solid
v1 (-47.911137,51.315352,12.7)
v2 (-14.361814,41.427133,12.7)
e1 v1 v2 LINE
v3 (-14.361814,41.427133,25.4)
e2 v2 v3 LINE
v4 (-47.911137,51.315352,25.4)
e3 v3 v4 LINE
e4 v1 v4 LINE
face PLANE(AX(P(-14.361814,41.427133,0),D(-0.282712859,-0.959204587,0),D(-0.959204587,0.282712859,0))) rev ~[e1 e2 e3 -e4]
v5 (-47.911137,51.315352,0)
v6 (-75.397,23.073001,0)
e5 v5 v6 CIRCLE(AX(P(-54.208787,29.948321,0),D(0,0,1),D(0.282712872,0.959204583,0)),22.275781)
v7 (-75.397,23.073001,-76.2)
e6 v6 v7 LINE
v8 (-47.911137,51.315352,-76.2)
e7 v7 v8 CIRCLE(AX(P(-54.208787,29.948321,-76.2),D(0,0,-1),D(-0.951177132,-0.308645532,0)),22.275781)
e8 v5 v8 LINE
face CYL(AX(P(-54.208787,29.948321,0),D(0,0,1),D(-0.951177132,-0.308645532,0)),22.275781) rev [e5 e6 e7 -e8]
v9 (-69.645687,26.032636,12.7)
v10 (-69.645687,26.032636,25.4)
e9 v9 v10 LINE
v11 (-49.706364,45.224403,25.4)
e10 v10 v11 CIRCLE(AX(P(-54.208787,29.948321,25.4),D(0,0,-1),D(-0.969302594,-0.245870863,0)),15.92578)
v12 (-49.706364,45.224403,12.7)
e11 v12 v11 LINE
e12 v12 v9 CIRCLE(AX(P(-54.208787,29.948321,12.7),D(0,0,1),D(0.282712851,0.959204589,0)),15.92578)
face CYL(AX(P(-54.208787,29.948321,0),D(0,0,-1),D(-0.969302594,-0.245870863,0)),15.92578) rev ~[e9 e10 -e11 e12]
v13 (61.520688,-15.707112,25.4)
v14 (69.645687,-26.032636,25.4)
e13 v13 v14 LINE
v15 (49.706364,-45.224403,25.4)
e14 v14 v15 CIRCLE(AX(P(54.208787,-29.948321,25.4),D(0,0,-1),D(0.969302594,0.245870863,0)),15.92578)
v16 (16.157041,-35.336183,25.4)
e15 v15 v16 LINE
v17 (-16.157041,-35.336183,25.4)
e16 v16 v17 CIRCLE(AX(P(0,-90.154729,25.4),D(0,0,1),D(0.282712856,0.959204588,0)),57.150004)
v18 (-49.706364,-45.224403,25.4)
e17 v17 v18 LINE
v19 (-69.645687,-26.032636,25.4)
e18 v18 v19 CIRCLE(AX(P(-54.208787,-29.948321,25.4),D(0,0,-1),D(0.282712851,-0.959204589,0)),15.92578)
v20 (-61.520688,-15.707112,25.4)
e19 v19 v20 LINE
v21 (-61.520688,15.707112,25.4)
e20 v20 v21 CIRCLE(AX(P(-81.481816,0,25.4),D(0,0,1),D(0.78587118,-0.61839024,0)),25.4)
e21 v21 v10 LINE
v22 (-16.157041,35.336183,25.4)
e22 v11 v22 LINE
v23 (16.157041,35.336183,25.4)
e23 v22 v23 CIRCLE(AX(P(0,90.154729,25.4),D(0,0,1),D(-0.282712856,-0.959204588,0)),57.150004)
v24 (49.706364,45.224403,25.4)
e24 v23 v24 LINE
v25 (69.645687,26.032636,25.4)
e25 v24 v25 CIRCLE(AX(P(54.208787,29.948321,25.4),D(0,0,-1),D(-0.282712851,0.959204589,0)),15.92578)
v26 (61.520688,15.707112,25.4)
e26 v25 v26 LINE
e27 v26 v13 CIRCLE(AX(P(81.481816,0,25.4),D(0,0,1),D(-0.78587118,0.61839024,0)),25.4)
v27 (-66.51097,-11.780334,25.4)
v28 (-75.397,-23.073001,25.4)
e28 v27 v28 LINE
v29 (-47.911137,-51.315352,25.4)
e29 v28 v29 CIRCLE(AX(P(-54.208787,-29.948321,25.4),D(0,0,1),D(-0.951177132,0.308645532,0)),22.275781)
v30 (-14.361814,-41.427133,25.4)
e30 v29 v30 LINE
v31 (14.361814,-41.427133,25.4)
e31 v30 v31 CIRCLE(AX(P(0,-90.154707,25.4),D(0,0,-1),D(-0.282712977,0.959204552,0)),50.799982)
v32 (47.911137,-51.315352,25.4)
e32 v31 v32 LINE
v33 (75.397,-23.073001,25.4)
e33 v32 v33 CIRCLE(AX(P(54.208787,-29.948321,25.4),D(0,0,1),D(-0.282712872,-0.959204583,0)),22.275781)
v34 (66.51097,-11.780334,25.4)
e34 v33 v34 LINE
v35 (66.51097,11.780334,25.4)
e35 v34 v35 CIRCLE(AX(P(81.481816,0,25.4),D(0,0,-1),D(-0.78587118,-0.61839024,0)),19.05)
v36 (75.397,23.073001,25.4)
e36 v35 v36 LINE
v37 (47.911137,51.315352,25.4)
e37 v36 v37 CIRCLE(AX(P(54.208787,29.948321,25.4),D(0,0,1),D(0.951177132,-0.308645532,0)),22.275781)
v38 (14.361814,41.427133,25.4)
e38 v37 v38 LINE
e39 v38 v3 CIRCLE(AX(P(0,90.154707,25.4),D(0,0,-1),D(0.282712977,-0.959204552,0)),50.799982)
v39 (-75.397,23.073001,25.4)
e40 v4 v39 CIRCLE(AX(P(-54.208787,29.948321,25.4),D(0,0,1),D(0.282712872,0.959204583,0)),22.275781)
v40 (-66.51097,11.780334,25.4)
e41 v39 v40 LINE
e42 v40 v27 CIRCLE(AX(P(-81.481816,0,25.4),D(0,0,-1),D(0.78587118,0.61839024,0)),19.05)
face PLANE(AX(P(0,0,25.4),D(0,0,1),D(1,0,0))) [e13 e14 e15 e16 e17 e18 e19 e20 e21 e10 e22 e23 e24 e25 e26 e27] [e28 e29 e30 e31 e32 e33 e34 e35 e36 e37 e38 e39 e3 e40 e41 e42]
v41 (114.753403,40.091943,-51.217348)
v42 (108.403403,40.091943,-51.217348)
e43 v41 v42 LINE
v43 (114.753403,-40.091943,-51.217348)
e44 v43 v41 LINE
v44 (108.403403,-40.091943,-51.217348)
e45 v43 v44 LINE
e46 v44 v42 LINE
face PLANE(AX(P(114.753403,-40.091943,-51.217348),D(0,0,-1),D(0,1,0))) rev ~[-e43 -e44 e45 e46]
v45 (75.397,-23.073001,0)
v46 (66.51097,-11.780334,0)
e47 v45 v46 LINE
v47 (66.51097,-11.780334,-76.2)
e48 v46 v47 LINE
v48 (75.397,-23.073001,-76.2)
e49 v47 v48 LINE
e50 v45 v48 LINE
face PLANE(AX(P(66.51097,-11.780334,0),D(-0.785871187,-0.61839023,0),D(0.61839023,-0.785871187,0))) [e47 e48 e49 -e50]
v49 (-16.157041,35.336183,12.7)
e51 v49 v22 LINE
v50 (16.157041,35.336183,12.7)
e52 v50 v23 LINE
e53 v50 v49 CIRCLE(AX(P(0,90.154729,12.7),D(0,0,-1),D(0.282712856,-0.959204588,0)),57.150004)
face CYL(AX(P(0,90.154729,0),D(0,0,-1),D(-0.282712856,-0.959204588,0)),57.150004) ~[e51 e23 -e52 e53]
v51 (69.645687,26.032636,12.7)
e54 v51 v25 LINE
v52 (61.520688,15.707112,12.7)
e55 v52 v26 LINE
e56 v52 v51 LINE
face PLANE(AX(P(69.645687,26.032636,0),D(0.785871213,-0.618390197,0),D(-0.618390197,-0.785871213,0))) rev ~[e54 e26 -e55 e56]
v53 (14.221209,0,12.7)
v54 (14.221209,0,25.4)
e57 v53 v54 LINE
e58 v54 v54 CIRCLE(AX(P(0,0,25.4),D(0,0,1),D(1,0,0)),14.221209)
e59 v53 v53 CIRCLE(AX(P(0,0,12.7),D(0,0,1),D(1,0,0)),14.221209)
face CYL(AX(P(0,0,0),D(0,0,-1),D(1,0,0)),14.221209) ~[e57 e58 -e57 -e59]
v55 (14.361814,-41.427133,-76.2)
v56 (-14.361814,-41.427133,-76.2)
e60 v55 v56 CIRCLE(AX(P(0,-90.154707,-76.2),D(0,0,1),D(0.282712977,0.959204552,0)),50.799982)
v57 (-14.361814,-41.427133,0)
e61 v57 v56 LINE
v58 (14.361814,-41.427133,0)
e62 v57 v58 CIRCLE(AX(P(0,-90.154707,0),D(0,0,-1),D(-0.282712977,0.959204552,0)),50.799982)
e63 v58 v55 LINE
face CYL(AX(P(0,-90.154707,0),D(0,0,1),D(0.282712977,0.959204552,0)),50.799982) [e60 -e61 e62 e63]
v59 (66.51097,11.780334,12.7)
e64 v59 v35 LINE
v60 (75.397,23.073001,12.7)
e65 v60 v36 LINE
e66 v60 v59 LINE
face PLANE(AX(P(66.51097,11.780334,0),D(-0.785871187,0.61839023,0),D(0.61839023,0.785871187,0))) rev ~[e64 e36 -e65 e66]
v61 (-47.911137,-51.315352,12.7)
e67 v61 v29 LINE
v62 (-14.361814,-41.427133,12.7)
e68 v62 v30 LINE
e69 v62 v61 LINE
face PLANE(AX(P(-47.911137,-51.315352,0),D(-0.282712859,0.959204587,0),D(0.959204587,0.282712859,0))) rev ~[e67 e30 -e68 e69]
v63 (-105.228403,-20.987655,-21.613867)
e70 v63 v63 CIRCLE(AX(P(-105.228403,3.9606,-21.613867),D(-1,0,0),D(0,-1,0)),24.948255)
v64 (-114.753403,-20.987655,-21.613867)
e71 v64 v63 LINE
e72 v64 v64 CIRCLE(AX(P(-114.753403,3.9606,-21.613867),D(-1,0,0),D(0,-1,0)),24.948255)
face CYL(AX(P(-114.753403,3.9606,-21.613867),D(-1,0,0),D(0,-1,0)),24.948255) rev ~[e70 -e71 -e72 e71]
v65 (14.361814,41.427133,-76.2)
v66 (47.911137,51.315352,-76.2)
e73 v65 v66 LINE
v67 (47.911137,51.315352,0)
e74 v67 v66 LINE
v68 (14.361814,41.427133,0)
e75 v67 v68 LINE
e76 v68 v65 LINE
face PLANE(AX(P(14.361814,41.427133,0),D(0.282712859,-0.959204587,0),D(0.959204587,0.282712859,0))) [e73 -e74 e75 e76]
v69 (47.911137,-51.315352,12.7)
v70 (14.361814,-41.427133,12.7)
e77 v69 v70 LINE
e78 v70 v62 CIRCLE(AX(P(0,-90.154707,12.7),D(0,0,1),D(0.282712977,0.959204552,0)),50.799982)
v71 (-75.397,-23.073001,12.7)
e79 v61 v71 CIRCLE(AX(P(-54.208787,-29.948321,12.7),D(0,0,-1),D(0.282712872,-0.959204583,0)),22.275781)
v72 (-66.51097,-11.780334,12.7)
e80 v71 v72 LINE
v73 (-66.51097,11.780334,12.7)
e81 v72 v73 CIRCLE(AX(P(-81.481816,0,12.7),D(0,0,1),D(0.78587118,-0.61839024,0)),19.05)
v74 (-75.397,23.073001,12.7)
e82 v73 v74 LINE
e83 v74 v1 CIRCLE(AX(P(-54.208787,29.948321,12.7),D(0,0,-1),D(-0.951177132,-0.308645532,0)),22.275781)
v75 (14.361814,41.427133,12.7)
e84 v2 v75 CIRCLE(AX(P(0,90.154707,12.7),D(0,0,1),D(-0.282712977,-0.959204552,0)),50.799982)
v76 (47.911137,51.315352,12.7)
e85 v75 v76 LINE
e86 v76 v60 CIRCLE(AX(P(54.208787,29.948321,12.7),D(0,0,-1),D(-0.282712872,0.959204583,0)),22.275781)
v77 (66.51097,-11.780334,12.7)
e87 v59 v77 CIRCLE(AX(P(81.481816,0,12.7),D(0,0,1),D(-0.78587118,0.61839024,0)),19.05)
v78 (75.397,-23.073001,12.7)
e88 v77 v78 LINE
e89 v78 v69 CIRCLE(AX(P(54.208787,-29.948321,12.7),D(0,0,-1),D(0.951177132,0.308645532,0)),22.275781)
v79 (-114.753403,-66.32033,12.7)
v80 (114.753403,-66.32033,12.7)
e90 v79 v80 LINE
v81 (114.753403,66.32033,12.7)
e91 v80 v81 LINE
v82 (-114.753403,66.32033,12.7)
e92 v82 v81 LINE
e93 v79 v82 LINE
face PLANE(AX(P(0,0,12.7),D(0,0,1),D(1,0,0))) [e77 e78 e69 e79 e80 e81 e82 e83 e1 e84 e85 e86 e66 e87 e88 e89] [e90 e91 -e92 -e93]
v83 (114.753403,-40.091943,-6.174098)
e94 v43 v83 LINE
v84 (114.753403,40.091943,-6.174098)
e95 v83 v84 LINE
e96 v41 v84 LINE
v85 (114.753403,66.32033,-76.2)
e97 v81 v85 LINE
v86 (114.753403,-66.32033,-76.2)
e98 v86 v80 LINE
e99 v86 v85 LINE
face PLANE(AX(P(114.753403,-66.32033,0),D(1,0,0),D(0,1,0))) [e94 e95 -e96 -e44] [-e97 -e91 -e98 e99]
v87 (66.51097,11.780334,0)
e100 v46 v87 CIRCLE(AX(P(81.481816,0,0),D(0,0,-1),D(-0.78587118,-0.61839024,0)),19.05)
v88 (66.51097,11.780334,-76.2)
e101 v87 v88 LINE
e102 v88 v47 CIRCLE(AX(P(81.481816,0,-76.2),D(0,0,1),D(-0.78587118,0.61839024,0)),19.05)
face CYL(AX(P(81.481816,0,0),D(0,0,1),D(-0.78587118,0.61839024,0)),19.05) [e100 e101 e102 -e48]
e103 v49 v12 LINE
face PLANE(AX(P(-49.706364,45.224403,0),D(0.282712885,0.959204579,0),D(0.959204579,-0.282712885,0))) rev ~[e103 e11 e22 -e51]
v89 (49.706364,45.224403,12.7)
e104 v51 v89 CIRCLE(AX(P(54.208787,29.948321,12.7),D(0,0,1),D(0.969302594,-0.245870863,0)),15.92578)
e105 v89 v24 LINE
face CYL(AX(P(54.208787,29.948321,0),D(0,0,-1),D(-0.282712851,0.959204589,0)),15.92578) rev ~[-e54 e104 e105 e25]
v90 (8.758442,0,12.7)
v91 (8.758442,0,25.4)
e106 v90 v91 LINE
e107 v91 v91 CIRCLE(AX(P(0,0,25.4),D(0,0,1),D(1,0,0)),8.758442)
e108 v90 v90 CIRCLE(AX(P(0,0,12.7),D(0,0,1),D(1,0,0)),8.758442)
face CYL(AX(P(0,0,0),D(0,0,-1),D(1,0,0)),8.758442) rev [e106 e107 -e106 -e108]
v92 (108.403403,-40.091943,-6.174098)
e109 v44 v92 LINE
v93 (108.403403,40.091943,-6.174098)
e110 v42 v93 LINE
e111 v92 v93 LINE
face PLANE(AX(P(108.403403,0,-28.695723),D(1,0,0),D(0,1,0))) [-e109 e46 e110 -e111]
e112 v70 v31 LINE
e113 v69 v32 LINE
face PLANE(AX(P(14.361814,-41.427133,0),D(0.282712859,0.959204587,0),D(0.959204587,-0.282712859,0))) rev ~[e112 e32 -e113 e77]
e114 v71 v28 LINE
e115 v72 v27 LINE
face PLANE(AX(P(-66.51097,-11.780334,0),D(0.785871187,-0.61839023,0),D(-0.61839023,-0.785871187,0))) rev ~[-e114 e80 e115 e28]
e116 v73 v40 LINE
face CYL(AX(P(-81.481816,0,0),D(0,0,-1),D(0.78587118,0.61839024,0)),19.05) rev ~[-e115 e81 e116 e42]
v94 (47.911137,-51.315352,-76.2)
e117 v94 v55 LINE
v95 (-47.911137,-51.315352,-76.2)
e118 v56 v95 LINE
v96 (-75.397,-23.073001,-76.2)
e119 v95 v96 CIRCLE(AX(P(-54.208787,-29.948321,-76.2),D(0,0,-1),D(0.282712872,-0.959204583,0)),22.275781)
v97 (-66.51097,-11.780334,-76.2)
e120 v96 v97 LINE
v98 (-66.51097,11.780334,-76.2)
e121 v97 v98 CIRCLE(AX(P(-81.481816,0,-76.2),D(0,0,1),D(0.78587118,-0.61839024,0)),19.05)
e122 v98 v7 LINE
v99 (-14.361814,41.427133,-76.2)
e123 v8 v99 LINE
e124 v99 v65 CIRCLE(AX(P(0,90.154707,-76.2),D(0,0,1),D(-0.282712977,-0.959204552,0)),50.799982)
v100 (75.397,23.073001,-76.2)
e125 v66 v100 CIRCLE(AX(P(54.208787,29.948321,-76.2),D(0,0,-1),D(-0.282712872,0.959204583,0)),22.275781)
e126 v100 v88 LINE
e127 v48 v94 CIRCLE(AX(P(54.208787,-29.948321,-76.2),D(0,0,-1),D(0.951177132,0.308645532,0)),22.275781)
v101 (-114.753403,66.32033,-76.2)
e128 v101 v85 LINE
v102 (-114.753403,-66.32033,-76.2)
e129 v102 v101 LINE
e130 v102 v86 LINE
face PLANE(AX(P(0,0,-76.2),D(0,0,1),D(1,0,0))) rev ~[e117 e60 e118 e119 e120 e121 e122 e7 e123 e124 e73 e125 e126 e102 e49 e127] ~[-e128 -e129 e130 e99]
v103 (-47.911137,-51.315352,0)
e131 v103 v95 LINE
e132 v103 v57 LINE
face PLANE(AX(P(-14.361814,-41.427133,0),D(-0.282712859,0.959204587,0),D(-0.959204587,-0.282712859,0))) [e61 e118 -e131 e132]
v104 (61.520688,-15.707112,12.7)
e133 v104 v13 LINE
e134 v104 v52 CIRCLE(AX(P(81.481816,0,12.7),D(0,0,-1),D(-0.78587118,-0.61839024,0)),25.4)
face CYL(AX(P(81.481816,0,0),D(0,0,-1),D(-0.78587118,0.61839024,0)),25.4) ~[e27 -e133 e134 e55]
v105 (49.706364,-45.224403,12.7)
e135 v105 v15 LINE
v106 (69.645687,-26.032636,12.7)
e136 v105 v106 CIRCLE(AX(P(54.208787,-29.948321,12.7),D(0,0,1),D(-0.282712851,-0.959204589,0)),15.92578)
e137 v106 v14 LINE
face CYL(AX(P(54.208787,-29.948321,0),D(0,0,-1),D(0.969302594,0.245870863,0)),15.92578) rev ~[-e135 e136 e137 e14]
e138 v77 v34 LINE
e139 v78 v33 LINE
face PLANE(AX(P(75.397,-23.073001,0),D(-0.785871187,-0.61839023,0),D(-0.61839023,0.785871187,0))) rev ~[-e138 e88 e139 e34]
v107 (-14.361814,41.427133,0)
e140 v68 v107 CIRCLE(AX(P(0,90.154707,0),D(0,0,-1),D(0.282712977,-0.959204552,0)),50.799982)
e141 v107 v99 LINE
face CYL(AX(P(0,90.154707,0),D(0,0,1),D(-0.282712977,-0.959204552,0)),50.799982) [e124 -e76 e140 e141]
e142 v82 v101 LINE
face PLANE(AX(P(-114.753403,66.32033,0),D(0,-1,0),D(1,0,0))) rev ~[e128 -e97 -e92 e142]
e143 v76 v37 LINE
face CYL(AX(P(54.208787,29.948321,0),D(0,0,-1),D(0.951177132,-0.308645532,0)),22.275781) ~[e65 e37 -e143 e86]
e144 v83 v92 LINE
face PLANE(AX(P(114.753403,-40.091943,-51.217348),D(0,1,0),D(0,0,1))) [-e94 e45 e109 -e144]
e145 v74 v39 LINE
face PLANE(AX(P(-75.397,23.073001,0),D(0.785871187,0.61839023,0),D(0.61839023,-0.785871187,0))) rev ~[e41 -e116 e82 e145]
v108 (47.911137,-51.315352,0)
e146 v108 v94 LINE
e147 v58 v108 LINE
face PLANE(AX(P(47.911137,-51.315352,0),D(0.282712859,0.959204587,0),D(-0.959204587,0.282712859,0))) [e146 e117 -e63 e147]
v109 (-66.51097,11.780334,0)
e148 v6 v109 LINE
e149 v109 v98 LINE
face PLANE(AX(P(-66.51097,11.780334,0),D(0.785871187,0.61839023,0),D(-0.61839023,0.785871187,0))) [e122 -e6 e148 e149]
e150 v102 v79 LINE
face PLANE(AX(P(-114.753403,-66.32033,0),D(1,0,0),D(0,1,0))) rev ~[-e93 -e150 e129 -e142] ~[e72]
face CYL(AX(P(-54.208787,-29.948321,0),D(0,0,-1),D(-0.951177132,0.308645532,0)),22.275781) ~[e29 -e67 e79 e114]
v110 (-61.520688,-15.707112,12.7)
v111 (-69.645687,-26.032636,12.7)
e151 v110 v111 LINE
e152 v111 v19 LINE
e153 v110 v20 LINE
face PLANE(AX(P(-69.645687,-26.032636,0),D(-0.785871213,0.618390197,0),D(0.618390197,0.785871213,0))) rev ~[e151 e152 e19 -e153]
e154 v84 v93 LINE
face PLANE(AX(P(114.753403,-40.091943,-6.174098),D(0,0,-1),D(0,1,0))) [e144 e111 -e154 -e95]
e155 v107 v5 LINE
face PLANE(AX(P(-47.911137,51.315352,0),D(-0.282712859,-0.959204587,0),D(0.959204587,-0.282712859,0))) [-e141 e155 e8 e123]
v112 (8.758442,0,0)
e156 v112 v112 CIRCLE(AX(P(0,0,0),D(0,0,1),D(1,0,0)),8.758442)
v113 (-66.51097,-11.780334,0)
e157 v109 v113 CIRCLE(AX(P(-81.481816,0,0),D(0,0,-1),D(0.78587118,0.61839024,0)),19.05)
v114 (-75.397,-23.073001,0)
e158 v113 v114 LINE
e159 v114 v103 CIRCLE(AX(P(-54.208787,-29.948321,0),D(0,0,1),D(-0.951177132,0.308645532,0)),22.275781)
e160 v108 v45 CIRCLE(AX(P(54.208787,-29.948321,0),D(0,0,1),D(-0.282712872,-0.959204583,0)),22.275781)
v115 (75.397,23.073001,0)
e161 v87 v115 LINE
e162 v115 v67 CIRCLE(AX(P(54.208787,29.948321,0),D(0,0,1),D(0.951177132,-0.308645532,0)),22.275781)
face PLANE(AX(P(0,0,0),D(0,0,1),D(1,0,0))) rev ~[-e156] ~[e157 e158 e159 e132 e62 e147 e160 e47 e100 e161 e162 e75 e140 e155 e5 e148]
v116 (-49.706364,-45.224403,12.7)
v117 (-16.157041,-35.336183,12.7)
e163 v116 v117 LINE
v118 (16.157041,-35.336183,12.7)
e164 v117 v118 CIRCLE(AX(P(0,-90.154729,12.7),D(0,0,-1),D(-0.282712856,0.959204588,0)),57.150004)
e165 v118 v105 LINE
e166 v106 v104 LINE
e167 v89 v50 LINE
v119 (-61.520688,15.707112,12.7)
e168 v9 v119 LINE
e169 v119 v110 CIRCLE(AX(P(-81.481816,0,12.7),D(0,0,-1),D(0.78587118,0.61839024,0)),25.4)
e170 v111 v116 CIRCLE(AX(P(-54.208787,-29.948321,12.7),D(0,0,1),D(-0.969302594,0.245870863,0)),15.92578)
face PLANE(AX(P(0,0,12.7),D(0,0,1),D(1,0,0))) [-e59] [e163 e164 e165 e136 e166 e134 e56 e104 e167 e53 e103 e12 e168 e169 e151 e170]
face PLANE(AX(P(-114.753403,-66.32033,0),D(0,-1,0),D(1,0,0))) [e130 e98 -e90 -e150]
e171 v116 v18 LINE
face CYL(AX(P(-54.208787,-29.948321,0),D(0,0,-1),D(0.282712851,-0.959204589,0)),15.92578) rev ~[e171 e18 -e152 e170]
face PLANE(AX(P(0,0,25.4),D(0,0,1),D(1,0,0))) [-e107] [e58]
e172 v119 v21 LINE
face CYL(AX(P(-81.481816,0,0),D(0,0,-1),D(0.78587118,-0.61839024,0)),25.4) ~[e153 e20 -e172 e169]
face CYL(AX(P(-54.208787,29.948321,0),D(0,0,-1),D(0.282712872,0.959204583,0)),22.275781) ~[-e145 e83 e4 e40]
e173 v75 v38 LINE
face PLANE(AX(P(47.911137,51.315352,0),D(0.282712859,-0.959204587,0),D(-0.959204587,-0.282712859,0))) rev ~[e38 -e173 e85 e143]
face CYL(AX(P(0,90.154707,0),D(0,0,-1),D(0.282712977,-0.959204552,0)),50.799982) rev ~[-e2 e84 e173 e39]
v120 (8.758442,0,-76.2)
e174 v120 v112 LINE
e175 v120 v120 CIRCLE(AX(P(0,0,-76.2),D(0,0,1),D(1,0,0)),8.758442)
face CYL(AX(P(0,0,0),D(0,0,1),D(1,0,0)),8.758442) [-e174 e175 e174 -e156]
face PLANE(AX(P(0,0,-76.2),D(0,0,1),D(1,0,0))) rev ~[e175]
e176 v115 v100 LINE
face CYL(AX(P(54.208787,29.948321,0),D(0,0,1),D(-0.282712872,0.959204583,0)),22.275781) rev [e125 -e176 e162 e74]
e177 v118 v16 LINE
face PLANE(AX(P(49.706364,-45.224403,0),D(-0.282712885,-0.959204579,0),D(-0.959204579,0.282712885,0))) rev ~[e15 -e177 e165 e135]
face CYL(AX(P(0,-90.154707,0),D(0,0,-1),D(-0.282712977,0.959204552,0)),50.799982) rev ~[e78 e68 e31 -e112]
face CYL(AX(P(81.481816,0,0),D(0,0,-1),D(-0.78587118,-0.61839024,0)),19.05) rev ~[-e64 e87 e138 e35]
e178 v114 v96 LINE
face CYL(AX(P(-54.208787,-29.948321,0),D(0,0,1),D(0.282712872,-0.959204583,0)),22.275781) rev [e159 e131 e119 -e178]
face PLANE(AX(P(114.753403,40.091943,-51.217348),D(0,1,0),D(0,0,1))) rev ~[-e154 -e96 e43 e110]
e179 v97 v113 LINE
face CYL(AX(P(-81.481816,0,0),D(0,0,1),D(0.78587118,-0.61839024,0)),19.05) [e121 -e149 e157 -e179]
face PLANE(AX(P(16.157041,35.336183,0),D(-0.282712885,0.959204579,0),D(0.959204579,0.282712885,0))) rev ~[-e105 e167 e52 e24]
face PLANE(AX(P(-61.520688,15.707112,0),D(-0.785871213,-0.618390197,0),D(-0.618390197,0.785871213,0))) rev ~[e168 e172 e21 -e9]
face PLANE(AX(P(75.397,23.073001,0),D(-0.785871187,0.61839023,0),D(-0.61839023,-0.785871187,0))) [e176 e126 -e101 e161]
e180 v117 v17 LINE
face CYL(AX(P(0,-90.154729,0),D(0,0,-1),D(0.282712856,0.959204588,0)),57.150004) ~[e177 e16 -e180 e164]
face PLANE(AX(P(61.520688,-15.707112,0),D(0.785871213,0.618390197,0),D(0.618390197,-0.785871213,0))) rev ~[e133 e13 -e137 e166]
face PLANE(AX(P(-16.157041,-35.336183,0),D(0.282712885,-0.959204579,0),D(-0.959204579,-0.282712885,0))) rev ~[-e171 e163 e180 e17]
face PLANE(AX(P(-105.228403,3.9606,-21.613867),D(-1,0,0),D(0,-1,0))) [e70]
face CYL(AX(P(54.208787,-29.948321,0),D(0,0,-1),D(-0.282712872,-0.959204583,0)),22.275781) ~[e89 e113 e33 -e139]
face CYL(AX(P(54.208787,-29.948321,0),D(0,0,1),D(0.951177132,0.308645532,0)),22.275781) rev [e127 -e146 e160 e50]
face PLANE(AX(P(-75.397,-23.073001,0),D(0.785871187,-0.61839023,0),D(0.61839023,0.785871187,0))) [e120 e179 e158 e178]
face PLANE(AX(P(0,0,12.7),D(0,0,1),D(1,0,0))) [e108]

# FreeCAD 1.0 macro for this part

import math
import FreeCAD as App
import Part
import Sketcher
Q = App.Units.Quantity

doc = App.newDocument("Part")
body = doc.addObject("PartDesign::Body", "Body")
body.AllowCompound = True

# Sketch on XY plane
sketch1 = doc.addObject("Sketcher::SketchObject", "Sketch")
body.addObject(sketch1)
sketch1.AttachmentSupport = (doc.XY_Plane, [""])
sketch1.MapMode = "FlatFace"
sketch1.addGeometry([
    Part.LineSegment(App.Vector(-115, 66, 0), App.Vector(-115, -66, 0)),  # 0
    Part.LineSegment(App.Vector(-115, -66, 0), App.Vector(115, -66, 0)),  # 1
    Part.LineSegment(App.Vector(115, -66, 0), App.Vector(115, 66, 0)),  # 2
    Part.LineSegment(App.Vector(115, 66, 0), App.Vector(-115, 66, 0)),  # 3
    Part.LineSegment(App.Vector(-75, -23, 0), App.Vector(-67, -12, 0)),  # 4
    Part.ArcOfCircle(Part.Circle(App.Vector(-81, 0, 0), App.Vector(0, 0, 1), 19), math.radians(-38), math.radians(38)),  # 5
    Part.LineSegment(App.Vector(-67, 12, 0), App.Vector(-75, 23, 0)),  # 6
    Part.ArcOfCircle(Part.Circle(App.Vector(-54, 30, 0), App.Vector(0, 0, 1), 22), math.radians(74), math.radians(198)),  # 7
    Part.LineSegment(App.Vector(-48, 51, 0), App.Vector(-14, 41, 0)),  # 8
    Part.ArcOfCircle(Part.Circle(App.Vector(0, 90, 0), App.Vector(0, 0, 1), 51), math.radians(-106), math.radians(-74)),  # 9
    Part.LineSegment(App.Vector(14, 41, 0), App.Vector(48, 51, 0)),  # 10
    Part.ArcOfCircle(Part.Circle(App.Vector(54, 30, 0), App.Vector(0, 0, 1), 22), math.radians(-18), math.radians(106)),  # 11
    Part.LineSegment(App.Vector(75, 23, 0), App.Vector(67, 12, 0)),  # 12
    Part.ArcOfCircle(Part.Circle(App.Vector(81, 0, 0), App.Vector(0, 0, 1), 19), math.radians(142), math.radians(218)),  # 13
    Part.LineSegment(App.Vector(67, -12, 0), App.Vector(75, -23, 0)),  # 14
    Part.ArcOfCircle(Part.Circle(App.Vector(54, -30, 0), App.Vector(0, 0, 1), 22), math.radians(-106), math.radians(18)),  # 15
    Part.LineSegment(App.Vector(48, -51, 0), App.Vector(14, -41, 0)),  # 16
    Part.ArcOfCircle(Part.Circle(App.Vector(0, -90, 0), App.Vector(0, 0, 1), 51), math.radians(74), math.radians(106)),  # 17
    Part.LineSegment(App.Vector(-14, -41, 0), App.Vector(-48, -51, 0)),  # 18
    Part.ArcOfCircle(Part.Circle(App.Vector(-54, -30, 0), App.Vector(0, 0, 1), 22), math.radians(162), math.radians(286)),  # 19
    Part.Circle(App.Vector(0, 0, 0), App.Vector(0, 0, 1), 9),  # 20
], False)
sketch1.addConstraint([
    Sketcher.Constraint("Coincident", 0, 2, 1, 1),
    Sketcher.Constraint("Coincident", 1, 2, 2, 1),
    Sketcher.Constraint("Coincident", 2, 2, 3, 1),
    Sketcher.Constraint("Coincident", 3, 2, 0, 1),
    Sketcher.Constraint("Tangent", 4, 2, 5, 1),
    Sketcher.Constraint("Tangent", 5, 2, 6, 1),
    Sketcher.Constraint("Coincident", 6, 2, 7, 2),
    Sketcher.Constraint("Tangent", 7, 1, 8, 1),
    Sketcher.Constraint("Tangent", 8, 2, 9, 1),
    Sketcher.Constraint("Tangent", 9, 2, 10, 1),
    Sketcher.Constraint("Tangent", 10, 2, 11, 2),
    Sketcher.Constraint("Coincident", 11, 1, 12, 1),
    Sketcher.Constraint("Tangent", 12, 2, 13, 1),
    Sketcher.Constraint("Tangent", 13, 2, 14, 1),
    Sketcher.Constraint("Coincident", 14, 2, 15, 2),
    Sketcher.Constraint("Tangent", 15, 1, 16, 1),
    Sketcher.Constraint("Tangent", 16, 2, 17, 1),
    Sketcher.Constraint("Tangent", 17, 2, 18, 1),
    Sketcher.Constraint("Tangent", 18, 2, 19, 2),
    Sketcher.Constraint("Coincident", 19, 1, 4, 1),
    Sketcher.Constraint("Vertical", 0),
    Sketcher.Constraint("Horizontal", 1),
    Sketcher.Constraint("Vertical", 2),
    Sketcher.Constraint("Horizontal", 3),
    Sketcher.Constraint("Coincident", 20, 3, -1, 1),
    Sketcher.Constraint("Equal", 7, 11),
    Sketcher.Constraint("Equal", 5, 13),
    Sketcher.Constraint("Equal", 11, 15),
    Sketcher.Constraint("Equal", 9, 17),
    Sketcher.Constraint("Equal", 15, 19),
    Sketcher.Constraint("Symmetric", 5, 3, 13, 3, -1, 1),
    Sketcher.Constraint("Symmetric", 7, 3, 15, 3, -1, 1),
    Sketcher.Constraint("Symmetric", 9, 3, 17, 3, -1, 1),
    Sketcher.Constraint("Symmetric", 11, 3, 19, 3, -1, 1),
    Sketcher.Constraint("Symmetric", 0, 2, 2, 2, -1, 1),
    Sketcher.Constraint("Symmetric", 7, 3, 11, 3, -2),
    Sketcher.Constraint("Symmetric", 5, 2, 12, 2, -2),
    Sketcher.Constraint("PointOnObject", 9, 3, -2),
    Sketcher.Constraint("Parallel", 4, 12),
    Sketcher.Constraint("Parallel", 6, 14),
    Sketcher.Constraint("Radius", 5, Q("0.75 in")),
    Sketcher.Constraint("Radius", 7, Q("22.275781 mm")),
    Sketcher.Constraint("Radius", 9, Q("50.799982 mm")),
    Sketcher.Constraint("Diameter", 20, Q("17.516884 mm")),
    Sketcher.Constraint("DistanceY", 8, 2, 7, 1, Q("0.3893 in")),
    Sketcher.Constraint("DistanceY", 0, 2, 0, 1, Q("132.64066 mm")),
    Sketcher.Constraint("DistanceX", 6, 2, -1, 1, Q("75.397 mm")),
    Sketcher.Constraint("DistanceY", -1, 1, 6, 2, Q("23.073001 mm")),
    Sketcher.Constraint("DistanceY", 5, 2, 8, 2, Q("29.646799 mm")),
    Sketcher.Constraint("Distance", 8, Q("34.976191 mm")),
    Sketcher.Constraint("DistanceX", 1, 1, 1, 2, Q("229.506806 mm")),
])
pad1 = doc.addObject("PartDesign::Pad", "Pad")
body.addObject(pad1)
pad1.Profile = sketch1
pad1.Type = "TwoLengths"
pad1.Length = Q("0.5 in")
pad1.Length2 = Q("3 in")
body2 = doc.addObject("PartDesign::Body", "Body001")

# Sketch on XY plane
sketch2 = doc.addObject("Sketcher::SketchObject", "Sketch001")
body2.addObject(sketch2)
sketch2.AttachmentSupport = (doc.getObject("XY_Plane001"), [""])
sketch2.MapMode = "FlatFace"
sketch2.addGeometry([
    Part.ArcOfCircle(Part.Circle(App.Vector(54, 30, 0), App.Vector(0, 0, 1), 16), math.radians(-14), math.radians(106)),  # 0
    Part.LineSegment(App.Vector(50, 45, 0), App.Vector(16, 35, 0)),  # 1
    Part.ArcOfCircle(Part.Circle(App.Vector(0, 90, 0), App.Vector(0, 0, 1), 57), math.radians(-106), math.radians(-74)),  # 2
    Part.LineSegment(App.Vector(-16, 35, 0), App.Vector(-50, 45, 0)),  # 3
    Part.ArcOfCircle(Part.Circle(App.Vector(-54, 30, 0), App.Vector(0, 0, 1), 16), math.radians(74), math.radians(194)),  # 4
    Part.LineSegment(App.Vector(-70, 26, 0), App.Vector(-62, 16, 0)),  # 5
    Part.ArcOfCircle(Part.Circle(App.Vector(-81, 0, 0), App.Vector(0, 0, 1), 25), math.radians(-38), math.radians(38)),  # 6
    Part.LineSegment(App.Vector(-62, -16, 0), App.Vector(-70, -26, 0)),  # 7
    Part.ArcOfCircle(Part.Circle(App.Vector(-54, -30, 0), App.Vector(0, 0, 1), 16), math.radians(166), math.radians(286)),  # 8
    Part.LineSegment(App.Vector(-50, -45, 0), App.Vector(-16, -35, 0)),  # 9
    Part.ArcOfCircle(Part.Circle(App.Vector(0, -90, 0), App.Vector(0, 0, 1), 57), math.radians(74), math.radians(106)),  # 10
    Part.LineSegment(App.Vector(16, -35, 0), App.Vector(50, -45, 0)),  # 11
    Part.ArcOfCircle(Part.Circle(App.Vector(54, -30, 0), App.Vector(0, 0, 1), 16), math.radians(-106), math.radians(14)),  # 12
    Part.LineSegment(App.Vector(70, -26, 0), App.Vector(62, -16, 0)),  # 13
    Part.ArcOfCircle(Part.Circle(App.Vector(81, 0, 0), App.Vector(0, 0, 1), 25), math.radians(142), math.radians(218)),  # 14
    Part.LineSegment(App.Vector(62, 16, 0), App.Vector(70, 26, 0)),  # 15
    Part.Circle(App.Vector(0, 0, 0), App.Vector(0, 0, 1), 14),  # 16
], False)
sketch2.addConstraint([
    Sketcher.Constraint("Tangent", 0, 2, 1, 1),
    Sketcher.Constraint("Tangent", 1, 2, 2, 2),
    Sketcher.Constraint("Tangent", 2, 1, 3, 1),
    Sketcher.Constraint("Tangent", 3, 2, 4, 1),
    Sketcher.Constraint("Coincident", 4, 2, 5, 1),
    Sketcher.Constraint("Tangent", 5, 2, 6, 2),
    Sketcher.Constraint("Tangent", 6, 1, 7, 1),
    Sketcher.Constraint("Coincident", 7, 2, 8, 1),
    Sketcher.Constraint("Tangent", 8, 2, 9, 1),
    Sketcher.Constraint("Tangent", 9, 2, 10, 2),
    Sketcher.Constraint("Tangent", 10, 1, 11, 1),
    Sketcher.Constraint("Tangent", 11, 2, 12, 1),
    Sketcher.Constraint("Coincident", 12, 2, 13, 1),
    Sketcher.Constraint("Tangent", 13, 2, 14, 2),
    Sketcher.Constraint("Tangent", 14, 1, 15, 1),
    Sketcher.Constraint("Coincident", 15, 2, 0, 1),
    Sketcher.Constraint("Coincident", 16, 3, -1, 1),
    Sketcher.Constraint("Equal", 0, 4),
    Sketcher.Constraint("Equal", 4, 8),
    Sketcher.Constraint("Equal", 2, 10),
    Sketcher.Constraint("Equal", 8, 12),
    Sketcher.Constraint("Equal", 6, 14),
    Sketcher.Constraint("Symmetric", 0, 3, 8, 3, -1, 1),
    Sketcher.Constraint("Symmetric", 2, 3, 10, 3, -1, 1),
    Sketcher.Constraint("Symmetric", 4, 3, 12, 3, -1, 1),
    Sketcher.Constraint("Symmetric", 6, 3, 14, 3, -1, 1),
    Sketcher.Constraint("Symmetric", 0, 3, 4, 3, -2),
    Sketcher.Constraint("Symmetric", 6, 1, 13, 2, -2),
    Sketcher.Constraint("PointOnObject", 2, 3, -2),
    Sketcher.Constraint("Parallel", 5, 13),
    Sketcher.Constraint("Parallel", 7, 15),
    Sketcher.Constraint("Radius", 6, Q("1 in")),
    Sketcher.Constraint("Radius", 2, Q("2.2500002 in")),
    Sketcher.Constraint("Diameter", 16, Q("28.442418 mm")),
    Sketcher.Constraint("Radius", 0, Q("15.92578 mm")),
    Sketcher.Constraint("DistanceY", 1, 2, 0, 2, Q("0.3893 in")),
    Sketcher.Constraint("DistanceX", 4, 2, 4, 3, Q("15.4369 mm")),
    Sketcher.Constraint("DistanceX", 4, 2, 5, 2, Q("8.124999 mm")),
    Sketcher.Constraint("Distance", 1, Q("34.976191 mm")),
    Sketcher.Constraint("Distance", 5, Q("13.138952 mm")),
])
pad2 = doc.addObject("PartDesign::Pad", "Pad001")
body2.addObject(pad2)
pad2.Profile = sketch2
pad2.Length = Q("0.5 in")
body.AllowCompound = True
doc.recompute()

boolean = doc.addObject("PartDesign::Boolean", "Boolean")
body.addObject(boolean)
boolean.Type = "Fuse"
boolean.addObjects([body2])

# Sketch on XY plane
sketch3 = doc.addObject("Sketcher::SketchObject", "Sketch002")
body.addObject(sketch3)
sketch3.AttachmentSupport = (doc.XY_Plane, [""])
sketch3.MapMode = "FlatFace"
sketch3.addGeometry([
    Part.LineSegment(App.Vector(-75.397, 23.073001, 0), App.Vector(-66.51097, 11.780334, 0)),  # 0
    Part.ArcOfCircle(Part.Circle(App.Vector(-81.481816, 0, 0), App.Vector(0, 0, 1), 19.05), math.radians(-38.198676), math.radians(38.198676)),  # 1
    Part.LineSegment(App.Vector(-66.51097, -11.780334, 0), App.Vector(-75.397, -23.073001, 0)),  # 2
    Part.ArcOfCircle(Part.Circle(App.Vector(-54.208787, -29.948321, 0), App.Vector(0, 0, 1), 22.275781), math.radians(162.022377), math.radians(286.422184)),  # 3
    Part.LineSegment(App.Vector(-47.911137, -51.315352, 0), App.Vector(-14.361814, -41.427133, 0)),  # 4
    Part.ArcOfCircle(Part.Circle(App.Vector(0, -90.154707, 0), App.Vector(0, 0, 1), 50.799982), math.radians(73.577809), math.radians(106.422191)),  # 5
    Part.LineSegment(App.Vector(14.361814, -41.427133, 0), App.Vector(47.911137, -51.315352, 0)),  # 6
    Part.ArcOfCircle(Part.Circle(App.Vector(54.208787, -29.948321, 0), App.Vector(0, 0, 1), 22.275781), math.radians(-106.422184), math.radians(17.977623)),  # 7
    Part.LineSegment(App.Vector(75.397, -23.073001, 0), App.Vector(66.51097, -11.780334, 0)),  # 8
    Part.ArcOfCircle(Part.Circle(App.Vector(81.481816, 0, 0), App.Vector(0, 0, 1), 19.05), math.radians(141.801324), math.radians(218.198676)),  # 9
    Part.LineSegment(App.Vector(66.51097, 11.780334, 0), App.Vector(75.397, 23.073001, 0)),  # 10
    Part.ArcOfCircle(Part.Circle(App.Vector(54.208787, 29.948321, 0), App.Vector(0, 0, 1), 22.275781), math.radians(-17.977623), math.radians(106.422184)),  # 11
    Part.LineSegment(App.Vector(47.911137, 51.315352, 0), App.Vector(14.361814, 41.427133, 0)),  # 12
    Part.ArcOfCircle(Part.Circle(App.Vector(0, 90.154707, 0), App.Vector(0, 0, 1), 50.799982), math.radians(-106.422191), math.radians(-73.577809)),  # 13
    Part.LineSegment(App.Vector(-14.361814, 41.427133, 0), App.Vector(-47.911137, 51.315352, 0)),  # 14
    Part.ArcOfCircle(Part.Circle(App.Vector(-54.208787, 29.948321, 0), App.Vector(0, 0, 1), 22.275781), math.radians(73.577816), math.radians(197.977623)),  # 15
    Part.ArcOfCircle(Part.Circle(App.Vector(0, 90.154729, 0), App.Vector(0, 0, 1), 57.150004), math.radians(-106.422183), math.radians(-73.577817)),  # 16
    Part.LineSegment(App.Vector(16.157041, 35.336183, 0), App.Vector(49.706364, 45.224403, 0)),  # 17
    Part.ArcOfCircle(Part.Circle(App.Vector(54.208787, 29.948321, 0), App.Vector(0, 0, 1), 15.92578), math.radians(-14.233305), math.radians(106.422183)),  # 18
    Part.LineSegment(App.Vector(69.645687, 26.032636, 0), App.Vector(61.520688, 15.707112, 0)),  # 19
    Part.ArcOfCircle(Part.Circle(App.Vector(81.481816, 0, 0), App.Vector(0, 0, 1), 25.4), math.radians(141.801324), math.radians(218.198676)),  # 20
    Part.LineSegment(App.Vector(61.520688, -15.707112, 0), App.Vector(69.645687, -26.032636, 0)),  # 21
    Part.ArcOfCircle(Part.Circle(App.Vector(54.208787, -29.948321, 0), App.Vector(0, 0, 1), 15.92578), math.radians(-106.422183), math.radians(14.233305)),  # 22
    Part.LineSegment(App.Vector(49.706364, -45.224403, 0), App.Vector(16.157041, -35.336183, 0)),  # 23
    Part.ArcOfCircle(Part.Circle(App.Vector(0, -90.154729, 0), App.Vector(0, 0, 1), 57.150004), math.radians(73.577817), math.radians(106.422183)),  # 24
    Part.LineSegment(App.Vector(-16.157041, -35.336183, 0), App.Vector(-49.706364, -45.224403, 0)),  # 25
    Part.ArcOfCircle(Part.Circle(App.Vector(-54.208787, -29.948321, 0), App.Vector(0, 0, 1), 15.92578), math.radians(165.766695), math.radians(286.422183)),  # 26
    Part.LineSegment(App.Vector(-69.645687, -26.032636, 0), App.Vector(-61.520688, -15.707112, 0)),  # 27
    Part.ArcOfCircle(Part.Circle(App.Vector(-81.481816, 0, 0), App.Vector(0, 0, 1), 25.4), math.radians(-38.198676), math.radians(38.198676)),  # 28
    Part.LineSegment(App.Vector(-61.520688, 15.707112, 0), App.Vector(-69.645687, 26.032636, 0)),  # 29
    Part.ArcOfCircle(Part.Circle(App.Vector(-54.208787, 29.948321, 0), App.Vector(0, 0, 1), 15.92578), math.radians(73.577817), math.radians(194.233305)),  # 30
    Part.LineSegment(App.Vector(-49.706364, 45.224403, 0), App.Vector(-16.157041, 35.336183, 0)),  # 31
    Part.Circle(App.Vector(0, 0, 0), App.Vector(0, 0, 1), 14.221209),  # 32
    Part.Circle(App.Vector(0, 0, 0), App.Vector(0, 0, 1), 8.758442),  # 33
], False)
sketch3.addConstraint([
    Sketcher.Constraint("Coincident", 0, 2, 1, 2),
    Sketcher.Constraint("Coincident", 1, 1, 2, 1),
    Sketcher.Constraint("Coincident", 2, 2, 3, 1),
    Sketcher.Constraint("Coincident", 3, 2, 4, 1),
    Sketcher.Constraint("Coincident", 4, 2, 5, 2),
    Sketcher.Constraint("Coincident", 5, 1, 6, 1),
    Sketcher.Constraint("Coincident", 6, 2, 7, 1),
    Sketcher.Constraint("Coincident", 7, 2, 8, 1),
    Sketcher.Constraint("Coincident", 8, 2, 9, 2),
    Sketcher.Constraint("Coincident", 9, 1, 10, 1),
    Sketcher.Constraint("Coincident", 10, 2, 11, 1),
    Sketcher.Constraint("Coincident", 11, 2, 12, 1),
    Sketcher.Constraint("Coincident", 12, 2, 13, 2),
    Sketcher.Constraint("Coincident", 13, 1, 14, 1),
    Sketcher.Constraint("Coincident", 14, 2, 15, 1),
    Sketcher.Constraint("Coincident", 15, 2, 0, 1),
    Sketcher.Constraint("Coincident", 16, 2, 17, 1),
    Sketcher.Constraint("Coincident", 17, 2, 18, 2),
    Sketcher.Constraint("Coincident", 18, 1, 19, 1),
    Sketcher.Constraint("Coincident", 19, 2, 20, 1),
    Sketcher.Constraint("Coincident", 20, 2, 21, 1),
    Sketcher.Constraint("Coincident", 21, 2, 22, 2),
    Sketcher.Constraint("Coincident", 22, 1, 23, 1),
    Sketcher.Constraint("Coincident", 23, 2, 24, 1),
    Sketcher.Constraint("Coincident", 24, 2, 25, 1),
    Sketcher.Constraint("Coincident", 25, 2, 26, 2),
    Sketcher.Constraint("Coincident", 26, 1, 27, 1),
    Sketcher.Constraint("Coincident", 27, 2, 28, 1),
    Sketcher.Constraint("Coincident", 28, 2, 29, 1),
    Sketcher.Constraint("Coincident", 29, 2, 30, 2),
    Sketcher.Constraint("Coincident", 30, 1, 31, 1),
    Sketcher.Constraint("Coincident", 31, 2, 16, 1),
    Sketcher.Constraint("Coincident", 32, 3, -1, 1),
    Sketcher.Constraint("Coincident", 33, 3, -1, 1),
    Sketcher.Constraint("Coincident", 18, 3, 11, 3),
    Sketcher.Constraint("Coincident", 20, 3, 9, 3),
    Sketcher.Constraint("Coincident", 22, 3, 7, 3),
    Sketcher.Constraint("Coincident", 26, 3, 3, 3),
    Sketcher.Constraint("Coincident", 28, 3, 1, 3),
    Sketcher.Constraint("Coincident", 30, 3, 15, 3),
    Sketcher.Constraint("PointOnObject", 1, 3, -1),
    Sketcher.Constraint("PointOnObject", 5, 3, -2),
    Sketcher.Constraint("PointOnObject", 9, 3, -1),
    Sketcher.Constraint("PointOnObject", 13, 3, -2),
    Sketcher.Constraint("PointOnObject", 16, 3, -2),
    Sketcher.Constraint("PointOnObject", 24, 3, -2),
    Sketcher.Constraint("Radius", 20, Q("1 in")),
    Sketcher.Constraint("Radius", 28, Q("1 in")),
    Sketcher.Constraint("Radius", 1, Q("0.75 in")),
    Sketcher.Constraint("Radius", 9, Q("0.75 in")),
    Sketcher.Constraint("Radius", 16, Q("2.2500002 in")),
    Sketcher.Constraint("Radius", 24, Q("2.2500002 in")),
    Sketcher.Constraint("Diameter", 32, Q("28.442418 mm")),
    Sketcher.Constraint("Radius", 3, Q("22.275781 mm")),
    Sketcher.Constraint("Radius", 5, Q("50.799982 mm")),
    Sketcher.Constraint("Radius", 7, Q("22.275781 mm")),
    Sketcher.Constraint("Radius", 11, Q("22.275781 mm")),
    Sketcher.Constraint("Radius", 13, Q("50.799982 mm")),
    Sketcher.Constraint("Radius", 15, Q("22.275781 mm")),
    Sketcher.Constraint("Radius", 18, Q("15.92578 mm")),
    Sketcher.Constraint("Radius", 22, Q("15.92578 mm")),
    Sketcher.Constraint("Radius", 26, Q("15.92578 mm")),
    Sketcher.Constraint("Radius", 30, Q("15.92578 mm")),
    Sketcher.Constraint("Diameter", 33, Q("17.516884 mm")),
    Sketcher.Constraint("DistanceY", 3, 2, 4, 2, Q("0.3893 in")),
    Sketcher.Constraint("DistanceY", 6, 2, 5, 1, Q("0.3893 in")),
    Sketcher.Constraint("DistanceY", 12, 2, 11, 2, Q("0.3893 in")),
    Sketcher.Constraint("DistanceY", 13, 1, 14, 2, Q("0.3893 in")),
    Sketcher.Constraint("DistanceY", 16, 2, 17, 2, Q("0.3893 in")),
    Sketcher.Constraint("DistanceY", 22, 1, 23, 2, Q("0.3893 in")),
    Sketcher.Constraint("DistanceY", 25, 2, 24, 2, Q("0.3893 in")),
    Sketcher.Constraint("DistanceY", 31, 2, 30, 1, Q("0.3893 in")),
    Sketcher.Constraint("DistanceX", 2, 2, -1, 1, Q("75.397 mm")),
    Sketcher.Constraint("DistanceY", 2, 2, -1, 1, Q("23.073001 mm")),
    Sketcher.Constraint("DistanceX", -1, 1, 7, 2, Q("75.397 mm")),
    Sketcher.Constraint("DistanceY", 7, 2, -1, 1, Q("23.073001 mm")),
    Sketcher.Constraint("DistanceX", -1, 1, 10, 2, Q("75.397 mm")),
    Sketcher.Constraint("DistanceY", -1, 1, 10, 2, Q("23.073001 mm")),
    Sketcher.Constraint("DistanceX", 15, 2, -1, 1, Q("75.397 mm")),
    Sketcher.Constraint("DistanceY", -1, 1, 15, 2, Q("23.073001 mm")),
    Sketcher.Constraint("DistanceY", 9, 1, 18, 1, Q("14.252302 mm")),
    Sketcher.Constraint("DistanceX", 11, 3, 18, 1, Q("15.4369 mm")),
    Sketcher.Constraint("DistanceX", 19, 2, 18, 1, Q("8.124999 mm")),
    Sketcher.Constraint("DistanceX", 7, 3, 20, 2, Q("7.311901 mm")),
    Sketcher.Constraint("DistanceX", 20, 2, 21, 2, Q("8.124999 mm")),
    Sketcher.Constraint("DistanceY", 26, 1, 1, 1, Q("14.252302 mm")),
    Sketcher.Constraint("DistanceX", 26, 1, 3, 3, Q("15.4369 mm")),
    Sketcher.Constraint("DistanceX", 26, 1, 27, 2, Q("8.124999 mm")),
    Sketcher.Constraint("DistanceX", 28, 2, 15, 3, Q("7.311901 mm")),
    Sketcher.Constraint("DistanceX", 29, 2, 28, 2, Q("8.124999 mm")),
    Sketcher.Constraint("Distance", 4, Q("34.976191 mm")),
    Sketcher.Constraint("Distance", 6, Q("34.976191 mm")),
    Sketcher.Constraint("Distance", 12, Q("34.976191 mm")),
    Sketcher.Constraint("Distance", 14, Q("34.976191 mm")),
    Sketcher.Constraint("Distance", 17, Q("34.976191 mm")),
    Sketcher.Constraint("Distance", 19, Q("13.138952 mm")),
    Sketcher.Constraint("Distance", 21, Q("13.138952 mm")),
    Sketcher.Constraint("Distance", 23, Q("34.976191 mm")),
    Sketcher.Constraint("Distance", 27, Q("13.138952 mm")),
    Sketcher.Constraint("DistanceY", 3, 3, -1, 1, Q("29.948321 mm")),
    Sketcher.Constraint("DistanceX", 0, 2, -1, 1, Q("66.51097 mm")),
    Sketcher.Constraint("DistanceY", 6, 2, -1, 1, Q("51.315352 mm")),
    Sketcher.Constraint("DistanceX", -1, 1, 8, 2, Q("66.51097 mm")),
    Sketcher.Constraint("DistanceY", -1, 1, 14, 2, Q("51.315352 mm")),
    Sketcher.Constraint("DistanceX", -1, 1, 16, 2, Q("16.157041 mm")),
    Sketcher.Constraint("DistanceX", -1, 1, 23, 2, Q("16.157041 mm")),
    Sketcher.Constraint("DistanceX", 24, 2, -1, 1, Q("16.157041 mm")),
    Sketcher.Constraint("DistanceX", 31, 2, -1, 1, Q("16.157041 mm")),
    Sketcher.Constraint("DistanceX", 26, 3, 3, 2, Q("6.29765 mm")),
    Sketcher.Constraint("DistanceX", 11, 2, 18, 3, Q("6.29765 mm")),
])
pad3 = doc.addObject("PartDesign::Pad", "Pad002")
body.addObject(pad3)
pad3.Profile = sketch3
pad3.Length = Q("1 in")

# Sketch on XY plane
sketch4 = doc.addObject("Sketcher::SketchObject", "Sketch003")
body.addObject(sketch4)
sketch4.AttachmentSupport = (doc.XY_Plane, [""])
sketch4.MapMode = "FlatFace"
sketch4.addGeometry([
    Part.ArcOfCircle(Part.Circle(App.Vector(54, 30, 0), App.Vector(0, 0, 1), 16), math.radians(-14), math.radians(106)),  # 0
    Part.LineSegment(App.Vector(50, 45, 0), App.Vector(16, 35, 0)),  # 1
    Part.ArcOfCircle(Part.Circle(App.Vector(0, 90, 0), App.Vector(0, 0, 1), 57), math.radians(-106), math.radians(-74)),  # 2
    Part.LineSegment(App.Vector(-16, 35, 0), App.Vector(-50, 45, 0)),  # 3
    Part.ArcOfCircle(Part.Circle(App.Vector(-54, 30, 0), App.Vector(0, 0, 1), 16), math.radians(74), math.radians(194)),  # 4
    Part.LineSegment(App.Vector(-70, 26, 0), App.Vector(-62, 16, 0)),  # 5
    Part.ArcOfCircle(Part.Circle(App.Vector(-81, 0, 0), App.Vector(0, 0, 1), 25), math.radians(-38), math.radians(38)),  # 6
    Part.LineSegment(App.Vector(-62, -16, 0), App.Vector(-70, -26, 0)),  # 7
    Part.ArcOfCircle(Part.Circle(App.Vector(-54, -30, 0), App.Vector(0, 0, 1), 16), math.radians(166), math.radians(286)),  # 8
    Part.LineSegment(App.Vector(-50, -45, 0), App.Vector(-16, -35, 0)),  # 9
    Part.ArcOfCircle(Part.Circle(App.Vector(0, -90, 0), App.Vector(0, 0, 1), 57), math.radians(74), math.radians(106)),  # 10
    Part.LineSegment(App.Vector(16, -35, 0), App.Vector(50, -45, 0)),  # 11
    Part.ArcOfCircle(Part.Circle(App.Vector(54, -30, 0), App.Vector(0, 0, 1), 16), math.radians(-106), math.radians(14)),  # 12
    Part.LineSegment(App.Vector(70, -26, 0), App.Vector(62, -16, 0)),  # 13
    Part.ArcOfCircle(Part.Circle(App.Vector(81, 0, 0), App.Vector(0, 0, 1), 25), math.radians(142), math.radians(218)),  # 14
    Part.LineSegment(App.Vector(62, 16, 0), App.Vector(70, 26, 0)),  # 15
    Part.Circle(App.Vector(0, 0, 0), App.Vector(0, 0, 1), 14),  # 16
], False)
sketch4.addConstraint([
    Sketcher.Constraint("Tangent", 0, 2, 1, 1),
    Sketcher.Constraint("Tangent", 1, 2, 2, 2),
    Sketcher.Constraint("Tangent", 2, 1, 3, 1),
    Sketcher.Constraint("Tangent", 3, 2, 4, 1),
    Sketcher.Constraint("Coincident", 4, 2, 5, 1),
    Sketcher.Constraint("Tangent", 5, 2, 6, 2),
    Sketcher.Constraint("Tangent", 6, 1, 7, 1),
    Sketcher.Constraint("Coincident", 7, 2, 8, 1),
    Sketcher.Constraint("Tangent", 8, 2, 9, 1),
    Sketcher.Constraint("Tangent", 9, 2, 10, 2),
    Sketcher.Constraint("Tangent", 10, 1, 11, 1),
    Sketcher.Constraint("Tangent", 11, 2, 12, 1),
    Sketcher.Constraint("Coincident", 12, 2, 13, 1),
    Sketcher.Constraint("Tangent", 13, 2, 14, 2),
    Sketcher.Constraint("Tangent", 14, 1, 15, 1),
    Sketcher.Constraint("Coincident", 15, 2, 0, 1),
    Sketcher.Constraint("Coincident", 16, 3, -1, 1),
    Sketcher.Constraint("Equal", 0, 4),
    Sketcher.Constraint("Equal", 4, 8),
    Sketcher.Constraint("Equal", 2, 10),
    Sketcher.Constraint("Equal", 8, 12),
    Sketcher.Constraint("Equal", 6, 14),
    Sketcher.Constraint("Symmetric", 0, 3, 8, 3, -1, 1),
    Sketcher.Constraint("Symmetric", 2, 3, 10, 3, -1, 1),
    Sketcher.Constraint("Symmetric", 4, 3, 12, 3, -1, 1),
    Sketcher.Constraint("Symmetric", 6, 3, 14, 3, -1, 1),
    Sketcher.Constraint("Symmetric", 0, 3, 4, 3, -2),
    Sketcher.Constraint("Symmetric", 6, 1, 13, 2, -2),
    Sketcher.Constraint("PointOnObject", 2, 3, -2),
    Sketcher.Constraint("Parallel", 5, 13),
    Sketcher.Constraint("Parallel", 7, 15),
    Sketcher.Constraint("Radius", 6, Q("1 in")),
    Sketcher.Constraint("Radius", 2, Q("2.2500002 in")),
    Sketcher.Constraint("Diameter", 16, Q("28.442418 mm")),
    Sketcher.Constraint("Radius", 0, Q("15.92578 mm")),
    Sketcher.Constraint("DistanceY", 1, 2, 0, 2, Q("0.3893 in")),
    Sketcher.Constraint("DistanceX", 4, 2, 4, 3, Q("15.4369 mm")),
    Sketcher.Constraint("DistanceX", 4, 2, 5, 2, Q("8.124999 mm")),
    Sketcher.Constraint("Distance", 1, Q("34.976191 mm")),
    Sketcher.Constraint("Distance", 5, Q("13.138952 mm")),
])
pad4 = doc.addObject("PartDesign::Pad", "Pad003")
body.addObject(pad4)
pad4.Profile = sketch4
pad4.Length = Q("0.5 in")

# Sketch on YZ plane
sketch5 = doc.addObject("Sketcher::SketchObject", "Sketch004")
body.addObject(sketch5)
sketch5.AttachmentSupport = (doc.YZ_Plane, [""])
sketch5.MapMode = "FlatFace"
sketch5.AttachmentOffset = App.Placement(App.Vector(0, 0, 114.753403), App.Rotation())
sketch5.addGeometry([
    Part.LineSegment(App.Vector(-40, -6, 0), App.Vector(-40, -51, 0)),
    Part.LineSegment(App.Vector(-40, -51, 0), App.Vector(40, -51, 0)),
    Part.LineSegment(App.Vector(40, -51, 0), App.Vector(40, -6, 0)),
    Part.LineSegment(App.Vector(40, -6, 0), App.Vector(-40, -6, 0)),
], False)
sketch5.addConstraint([
    Sketcher.Constraint("Coincident", 0, 2, 1, 1),
    Sketcher.Constraint("Coincident", 1, 2, 2, 1),
    Sketcher.Constraint("Coincident", 2, 2, 3, 1),
    Sketcher.Constraint("Coincident", 3, 2, 0, 1),
    Sketcher.Constraint("Vertical", 0),
    Sketcher.Constraint("Horizontal", 1),
    Sketcher.Constraint("Vertical", 2),
    Sketcher.Constraint("Horizontal", 3),
    Sketcher.Constraint("DistanceY", 0, 2, 0, 1, Q("45.04325 mm")),
    Sketcher.Constraint("DistanceX", 1, 1, 1, 2, Q("80.183886 mm")),
    Sketcher.Constraint("DistanceX", 0, 2, -1, 1, Q("40.091943 mm")),
    Sketcher.Constraint("DistanceY", 0, 2, -1, 1, Q("51.217348 mm")),
])
pocket1 = doc.addObject("PartDesign::Pocket", "Pocket")
body.addObject(pocket1)
pocket1.Profile = sketch5
pocket1.Length = Q("0.25 in")

# Sketch on YZ plane
sketch6 = doc.addObject("Sketcher::SketchObject", "Sketch005")
body.addObject(sketch6)
sketch6.AttachmentSupport = (doc.YZ_Plane, [""])
sketch6.MapMode = "FlatFace"
sketch6.AttachmentOffset = App.Placement(App.Vector(0, 0, -114.753403), App.Rotation())
sketch6.addGeometry(Part.Circle(App.Vector(4, -22, 0), App.Vector(0, 0, 1), 25), False)
sketch6.addConstraint([
    Sketcher.Constraint("Diameter", 0, Q("49.89651 mm")),
    Sketcher.Constraint("DistanceX", -1, 1, 0, 3, Q("3.9606 mm")),
    Sketcher.Constraint("DistanceY", 0, 3, -1, 1, Q("21.613867 mm")),
])
pocket2 = doc.addObject("PartDesign::Pocket", "Pocket001")
body.addObject(pocket2)
pocket2.Profile = sketch6
pocket2.Length = Q("0.375 in")
pocket2.Reversed = True

doc.recompute()
